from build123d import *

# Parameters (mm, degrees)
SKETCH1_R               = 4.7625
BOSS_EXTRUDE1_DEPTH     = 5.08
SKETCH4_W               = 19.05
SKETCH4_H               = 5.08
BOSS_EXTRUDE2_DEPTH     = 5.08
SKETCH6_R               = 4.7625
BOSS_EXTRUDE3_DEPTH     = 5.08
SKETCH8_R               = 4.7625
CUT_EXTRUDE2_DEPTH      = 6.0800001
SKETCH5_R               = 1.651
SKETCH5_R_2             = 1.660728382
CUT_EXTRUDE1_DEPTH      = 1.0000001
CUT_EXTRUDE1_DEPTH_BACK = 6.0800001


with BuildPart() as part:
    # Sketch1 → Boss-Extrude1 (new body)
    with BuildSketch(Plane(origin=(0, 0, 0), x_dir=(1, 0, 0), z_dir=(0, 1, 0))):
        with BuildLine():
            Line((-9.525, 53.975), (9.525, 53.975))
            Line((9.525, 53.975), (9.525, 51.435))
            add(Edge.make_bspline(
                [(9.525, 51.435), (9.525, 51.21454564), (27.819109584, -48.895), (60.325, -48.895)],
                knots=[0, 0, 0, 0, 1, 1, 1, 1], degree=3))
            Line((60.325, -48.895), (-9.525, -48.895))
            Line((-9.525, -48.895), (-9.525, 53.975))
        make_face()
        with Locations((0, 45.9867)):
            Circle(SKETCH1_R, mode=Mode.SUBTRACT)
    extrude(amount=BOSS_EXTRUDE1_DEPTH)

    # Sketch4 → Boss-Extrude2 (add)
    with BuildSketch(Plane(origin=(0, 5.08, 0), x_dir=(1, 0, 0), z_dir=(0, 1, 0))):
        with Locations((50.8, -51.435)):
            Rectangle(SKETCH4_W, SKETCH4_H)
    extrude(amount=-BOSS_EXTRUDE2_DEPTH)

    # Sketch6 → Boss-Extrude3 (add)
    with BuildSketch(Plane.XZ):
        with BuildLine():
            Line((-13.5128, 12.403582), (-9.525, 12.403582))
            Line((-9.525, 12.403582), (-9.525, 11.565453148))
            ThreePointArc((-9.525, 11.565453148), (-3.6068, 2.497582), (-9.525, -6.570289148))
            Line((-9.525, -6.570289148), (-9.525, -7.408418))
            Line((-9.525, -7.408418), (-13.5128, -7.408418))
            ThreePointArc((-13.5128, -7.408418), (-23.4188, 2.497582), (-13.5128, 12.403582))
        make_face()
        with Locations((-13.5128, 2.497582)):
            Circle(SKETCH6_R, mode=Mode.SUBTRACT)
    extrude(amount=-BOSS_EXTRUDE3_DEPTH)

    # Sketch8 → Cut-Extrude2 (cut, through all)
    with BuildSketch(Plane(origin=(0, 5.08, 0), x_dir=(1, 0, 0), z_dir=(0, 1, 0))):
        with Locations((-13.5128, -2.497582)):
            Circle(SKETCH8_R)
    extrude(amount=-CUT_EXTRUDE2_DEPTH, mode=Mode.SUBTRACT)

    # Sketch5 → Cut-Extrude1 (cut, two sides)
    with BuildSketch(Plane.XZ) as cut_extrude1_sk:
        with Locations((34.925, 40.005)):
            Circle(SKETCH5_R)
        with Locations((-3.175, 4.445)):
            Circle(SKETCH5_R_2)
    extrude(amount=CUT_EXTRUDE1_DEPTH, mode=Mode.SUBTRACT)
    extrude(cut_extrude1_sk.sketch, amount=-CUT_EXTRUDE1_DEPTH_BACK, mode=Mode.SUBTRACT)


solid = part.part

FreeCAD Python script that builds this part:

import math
import FreeCAD as App
import Part
import Sketcher
Q = App.Units.Quantity


def add_polygon(sketch, points):
    """Adds a closed chain of lines whose ends are joined by coincident constraints."""
    first, n = sketch.GeometryCount, len(points)
    for a, b in zip(points, points[1:] + points[:1]):
        sketch.addGeometry(Part.LineSegment(App.Vector(*a, 0), App.Vector(*b, 0)), False)
    for i in range(n):
        sketch.addConstraint(Sketcher.Constraint("Coincident", first + i, 2, first + (i + 1) % n, 1))

doc = App.newDocument("Part")
body = doc.addObject("PartDesign::Body", "Body")

sketch1 = body.newObject("Sketcher::SketchObject", "Sketch")
sketch1.AttachmentSupport = (doc.getObject("XZ_Plane"), [""])
sketch1.MapMode = "FlatFace"
sketch1.addGeometry([
    Part.LineSegment(App.Vector(9.525, -53.975, 0), App.Vector(-9.525, -53.975, 0)),
    Part.LineSegment(App.Vector(-9.525, -53.975, 0), App.Vector(-9.525, 48.895, 0)),
    Part.LineSegment(App.Vector(-9.525, 48.895, 0), App.Vector(60.325, 48.895, 0)),
    Part.BSplineCurve([App.Vector(9.525, -51.435, 0), App.Vector(9.525, -51.214546, 0), App.Vector(27.81911, 48.895, 0), App.Vector(60.325, 48.895, 0)], [4, 4], [0, 1], False, 3, [1, 1, 1, 1], False),
    Part.LineSegment(App.Vector(9.525, -51.435, 0), App.Vector(9.525, -53.975, 0)),
    Part.Circle(App.Vector(0, -45.9867, 0), App.Vector(0, 0, 1), 4.7625),
], False)
sketch1.addConstraint([
    Sketcher.Constraint("Block", 3),
    Sketcher.Constraint("Coincident", 0, 2, 1, 1),
    Sketcher.Constraint("Coincident", 1, 2, 2, 1),
    Sketcher.Constraint("Coincident", 2, 2, 3, 2),
    Sketcher.Constraint("Coincident", 3, 1, 4, 1),
    Sketcher.Constraint("Coincident", 4, 2, 0, 1),
    Sketcher.Constraint("Horizontal", 0),
    Sketcher.Constraint("Vertical", 1),
    Sketcher.Constraint("Horizontal", 2),
    Sketcher.Constraint("Vertical", 4),
    Sketcher.Constraint("PointOnObject", 5, 3, -2),
    Sketcher.Constraint("Diameter", 5, Q("0.375 in")),
    Sketcher.Constraint("DistanceY", 4, 2, 4, 1, Q("0.1 in")),
    Sketcher.Constraint("DistanceX", 0, 2, 0, 1, Q("0.75 in")),
    Sketcher.Constraint("DistanceY", 5, 3, -1, 1, Q("1.8105 in")),
])
pad1 = body.newObject("PartDesign::Pad", "Pad")
pad1.Profile = sketch1
pad1.Length = Q("0.2 in")
pad1.Reversed = True

sketch2 = body.newObject("Sketcher::SketchObject", "Sketch001")
sketch2.AttachmentSupport = (doc.getObject("XZ_Plane"), [""])
sketch2.MapMode = "FlatFace"
sketch2.AttachmentOffset = App.Placement(App.Vector(0, 0, -0.2 * 25.4), App.Rotation())
add_polygon(sketch2, [(41.275, 48.895), (41.275, 53.975), (60.325, 53.975), (60.325, 48.895)])
sketch2.addConstraint([
    Sketcher.Constraint("Vertical", 0),
    Sketcher.Constraint("Horizontal", 1),
    Sketcher.Constraint("Vertical", 2),
    Sketcher.Constraint("Horizontal", 3),
    Sketcher.Constraint("DistanceY", 0, 1, 0, 2, Q("0.2 in")),
    Sketcher.Constraint("DistanceX", 1, 1, 1, 2, Q("0.75 in")),
    Sketcher.Constraint("DistanceX", -1, 1, 0, 2, Q("1.625 in")),
    Sketcher.Constraint("DistanceY", -1, 1, 0, 2, Q("2.125 in")),
])
pad2 = body.newObject("PartDesign::Pad", "Pad001")
pad2.Profile = sketch2
pad2.Length = Q("0.2 in")

sketch3 = body.newObject("Sketcher::SketchObject", "Sketch002")
sketch3.AttachmentSupport = (doc.getObject("XZ_Plane"), [""])
sketch3.MapMode = "FlatFace"
sketch3.addGeometry([
    Part.LineSegment(App.Vector(-9.525, 12.403582, 0), App.Vector(-13.5128, 12.403582, 0)),
    Part.ArcOfCircle(Part.Circle(App.Vector(-13.5128, 2.497582, 0), App.Vector(0, 0, 1), 9.906), math.radians(90), math.radians(270)),
    Part.LineSegment(App.Vector(-13.5128, -7.408418, 0), App.Vector(-9.525, -7.408418, 0)),
    Part.LineSegment(App.Vector(-9.525, -7.408418, 0), App.Vector(-9.525, -6.570289, 0)),
    Part.ArcOfCircle(Part.Circle(App.Vector(-13.5128, 2.497582, 0), App.Vector(0, 0, 1), 9.906), math.radians(-66.261429), math.radians(66.261429)),
    Part.LineSegment(App.Vector(-9.525, 11.565453, 0), App.Vector(-9.525, 12.403582, 0)),
    Part.Circle(App.Vector(-13.5128, 2.497582, 0), App.Vector(0, 0, 1), 4.7625),
], False)
sketch3.addConstraint([
    Sketcher.Constraint("Tangent", 0, 2, 1, 1),
    Sketcher.Constraint("Tangent", 1, 2, 2, 1),
    Sketcher.Constraint("Coincident", 2, 2, 3, 1),
    Sketcher.Constraint("Coincident", 3, 2, 4, 1),
    Sketcher.Constraint("Coincident", 4, 2, 5, 1),
    Sketcher.Constraint("Coincident", 5, 2, 0, 1),
    Sketcher.Constraint("Horizontal", 0),
    Sketcher.Constraint("Horizontal", 2),
    Sketcher.Constraint("Vertical", 3),
    Sketcher.Constraint("Vertical", 5),
    Sketcher.Constraint("Coincident", 4, 3, 1, 3),
    Sketcher.Constraint("Coincident", 6, 3, 1, 3),
    Sketcher.Constraint("Equal", 1, 4),
    Sketcher.Constraint("Vertical", 3, 2, 4, 2),
    Sketcher.Constraint("Radius", 1, Q("0.39 in")),
    Sketcher.Constraint("Diameter", 6, Q("0.375 in")),
    Sketcher.Constraint("DistanceX", 0, 2, 0, 1, Q("0.157 in")),
    Sketcher.Constraint("DistanceX", 1, 3, -1, 1, Q("0.532 in")),
    Sketcher.Constraint("DistanceY", -1, 1, 1, 3, Q("2.497582 mm")),
])
pad3 = body.newObject("PartDesign::Pad", "Pad002")
pad3.Profile = sketch3
pad3.Length = Q("0.2 in")
pad3.Reversed = True

sketch4 = body.newObject("Sketcher::SketchObject", "Sketch003")
sketch4.AttachmentSupport = (doc.getObject("XZ_Plane"), [""])
sketch4.MapMode = "FlatFace"
sketch4.AttachmentOffset = App.Placement(App.Vector(0, 0, -0.2 * 25.4), App.Rotation())
sketch4.addGeometry(Part.Circle(App.Vector(-13.5128, 2.497582, 0), App.Vector(0, 0, 1), 4.7625), False)
sketch4.addConstraint([
    Sketcher.Constraint("Diameter", 0, Q("0.375 in")),
    Sketcher.Constraint("DistanceX", 0, 3, -1, 1, Q("0.532 in")),
    Sketcher.Constraint("DistanceY", -1, 1, 0, 3, Q("2.497582 mm")),
])
pocket1 = body.newObject("PartDesign::Pocket", "Pocket")
pocket1.Profile = sketch4
pocket1.Type = "ThroughAll"
pocket1.Reversed = True

sketch5 = body.newObject("Sketcher::SketchObject", "Sketch004")
sketch5.AttachmentSupport = (doc.getObject("XZ_Plane"), [""])
sketch5.MapMode = "FlatFace"
sketch5.addGeometry([
    Part.Circle(App.Vector(34.925, 40.005, 0), App.Vector(0, 0, 1), 1.651),
    Part.Circle(App.Vector(-3.175, 4.445, 0), App.Vector(0, 0, 1), 1.660728),
], False)
sketch5.addConstraint([
    Sketcher.Constraint("Diameter", 0, Q("0.13 in")),
    Sketcher.Constraint("DistanceX", 1, 3, 0, 3, Q("1.5 in")),
    Sketcher.Constraint("DistanceY", 1, 3, 0, 3, Q("1.4 in")),
    Sketcher.Constraint("DistanceX", -1, 1, 0, 3, Q("1.375 in")),
    Sketcher.Constraint("DistanceY", -1, 1, 0, 3, Q("1.575 in")),
    Sketcher.Constraint("Diameter", 1, Q("3.321457 mm")),
])
pocket2 = body.newObject("PartDesign::Pocket", "Pocket001")
pocket2.Profile = sketch5
pocket2.Type = "ThroughAll"
pocket2.Midplane = True

doc.recompute()
